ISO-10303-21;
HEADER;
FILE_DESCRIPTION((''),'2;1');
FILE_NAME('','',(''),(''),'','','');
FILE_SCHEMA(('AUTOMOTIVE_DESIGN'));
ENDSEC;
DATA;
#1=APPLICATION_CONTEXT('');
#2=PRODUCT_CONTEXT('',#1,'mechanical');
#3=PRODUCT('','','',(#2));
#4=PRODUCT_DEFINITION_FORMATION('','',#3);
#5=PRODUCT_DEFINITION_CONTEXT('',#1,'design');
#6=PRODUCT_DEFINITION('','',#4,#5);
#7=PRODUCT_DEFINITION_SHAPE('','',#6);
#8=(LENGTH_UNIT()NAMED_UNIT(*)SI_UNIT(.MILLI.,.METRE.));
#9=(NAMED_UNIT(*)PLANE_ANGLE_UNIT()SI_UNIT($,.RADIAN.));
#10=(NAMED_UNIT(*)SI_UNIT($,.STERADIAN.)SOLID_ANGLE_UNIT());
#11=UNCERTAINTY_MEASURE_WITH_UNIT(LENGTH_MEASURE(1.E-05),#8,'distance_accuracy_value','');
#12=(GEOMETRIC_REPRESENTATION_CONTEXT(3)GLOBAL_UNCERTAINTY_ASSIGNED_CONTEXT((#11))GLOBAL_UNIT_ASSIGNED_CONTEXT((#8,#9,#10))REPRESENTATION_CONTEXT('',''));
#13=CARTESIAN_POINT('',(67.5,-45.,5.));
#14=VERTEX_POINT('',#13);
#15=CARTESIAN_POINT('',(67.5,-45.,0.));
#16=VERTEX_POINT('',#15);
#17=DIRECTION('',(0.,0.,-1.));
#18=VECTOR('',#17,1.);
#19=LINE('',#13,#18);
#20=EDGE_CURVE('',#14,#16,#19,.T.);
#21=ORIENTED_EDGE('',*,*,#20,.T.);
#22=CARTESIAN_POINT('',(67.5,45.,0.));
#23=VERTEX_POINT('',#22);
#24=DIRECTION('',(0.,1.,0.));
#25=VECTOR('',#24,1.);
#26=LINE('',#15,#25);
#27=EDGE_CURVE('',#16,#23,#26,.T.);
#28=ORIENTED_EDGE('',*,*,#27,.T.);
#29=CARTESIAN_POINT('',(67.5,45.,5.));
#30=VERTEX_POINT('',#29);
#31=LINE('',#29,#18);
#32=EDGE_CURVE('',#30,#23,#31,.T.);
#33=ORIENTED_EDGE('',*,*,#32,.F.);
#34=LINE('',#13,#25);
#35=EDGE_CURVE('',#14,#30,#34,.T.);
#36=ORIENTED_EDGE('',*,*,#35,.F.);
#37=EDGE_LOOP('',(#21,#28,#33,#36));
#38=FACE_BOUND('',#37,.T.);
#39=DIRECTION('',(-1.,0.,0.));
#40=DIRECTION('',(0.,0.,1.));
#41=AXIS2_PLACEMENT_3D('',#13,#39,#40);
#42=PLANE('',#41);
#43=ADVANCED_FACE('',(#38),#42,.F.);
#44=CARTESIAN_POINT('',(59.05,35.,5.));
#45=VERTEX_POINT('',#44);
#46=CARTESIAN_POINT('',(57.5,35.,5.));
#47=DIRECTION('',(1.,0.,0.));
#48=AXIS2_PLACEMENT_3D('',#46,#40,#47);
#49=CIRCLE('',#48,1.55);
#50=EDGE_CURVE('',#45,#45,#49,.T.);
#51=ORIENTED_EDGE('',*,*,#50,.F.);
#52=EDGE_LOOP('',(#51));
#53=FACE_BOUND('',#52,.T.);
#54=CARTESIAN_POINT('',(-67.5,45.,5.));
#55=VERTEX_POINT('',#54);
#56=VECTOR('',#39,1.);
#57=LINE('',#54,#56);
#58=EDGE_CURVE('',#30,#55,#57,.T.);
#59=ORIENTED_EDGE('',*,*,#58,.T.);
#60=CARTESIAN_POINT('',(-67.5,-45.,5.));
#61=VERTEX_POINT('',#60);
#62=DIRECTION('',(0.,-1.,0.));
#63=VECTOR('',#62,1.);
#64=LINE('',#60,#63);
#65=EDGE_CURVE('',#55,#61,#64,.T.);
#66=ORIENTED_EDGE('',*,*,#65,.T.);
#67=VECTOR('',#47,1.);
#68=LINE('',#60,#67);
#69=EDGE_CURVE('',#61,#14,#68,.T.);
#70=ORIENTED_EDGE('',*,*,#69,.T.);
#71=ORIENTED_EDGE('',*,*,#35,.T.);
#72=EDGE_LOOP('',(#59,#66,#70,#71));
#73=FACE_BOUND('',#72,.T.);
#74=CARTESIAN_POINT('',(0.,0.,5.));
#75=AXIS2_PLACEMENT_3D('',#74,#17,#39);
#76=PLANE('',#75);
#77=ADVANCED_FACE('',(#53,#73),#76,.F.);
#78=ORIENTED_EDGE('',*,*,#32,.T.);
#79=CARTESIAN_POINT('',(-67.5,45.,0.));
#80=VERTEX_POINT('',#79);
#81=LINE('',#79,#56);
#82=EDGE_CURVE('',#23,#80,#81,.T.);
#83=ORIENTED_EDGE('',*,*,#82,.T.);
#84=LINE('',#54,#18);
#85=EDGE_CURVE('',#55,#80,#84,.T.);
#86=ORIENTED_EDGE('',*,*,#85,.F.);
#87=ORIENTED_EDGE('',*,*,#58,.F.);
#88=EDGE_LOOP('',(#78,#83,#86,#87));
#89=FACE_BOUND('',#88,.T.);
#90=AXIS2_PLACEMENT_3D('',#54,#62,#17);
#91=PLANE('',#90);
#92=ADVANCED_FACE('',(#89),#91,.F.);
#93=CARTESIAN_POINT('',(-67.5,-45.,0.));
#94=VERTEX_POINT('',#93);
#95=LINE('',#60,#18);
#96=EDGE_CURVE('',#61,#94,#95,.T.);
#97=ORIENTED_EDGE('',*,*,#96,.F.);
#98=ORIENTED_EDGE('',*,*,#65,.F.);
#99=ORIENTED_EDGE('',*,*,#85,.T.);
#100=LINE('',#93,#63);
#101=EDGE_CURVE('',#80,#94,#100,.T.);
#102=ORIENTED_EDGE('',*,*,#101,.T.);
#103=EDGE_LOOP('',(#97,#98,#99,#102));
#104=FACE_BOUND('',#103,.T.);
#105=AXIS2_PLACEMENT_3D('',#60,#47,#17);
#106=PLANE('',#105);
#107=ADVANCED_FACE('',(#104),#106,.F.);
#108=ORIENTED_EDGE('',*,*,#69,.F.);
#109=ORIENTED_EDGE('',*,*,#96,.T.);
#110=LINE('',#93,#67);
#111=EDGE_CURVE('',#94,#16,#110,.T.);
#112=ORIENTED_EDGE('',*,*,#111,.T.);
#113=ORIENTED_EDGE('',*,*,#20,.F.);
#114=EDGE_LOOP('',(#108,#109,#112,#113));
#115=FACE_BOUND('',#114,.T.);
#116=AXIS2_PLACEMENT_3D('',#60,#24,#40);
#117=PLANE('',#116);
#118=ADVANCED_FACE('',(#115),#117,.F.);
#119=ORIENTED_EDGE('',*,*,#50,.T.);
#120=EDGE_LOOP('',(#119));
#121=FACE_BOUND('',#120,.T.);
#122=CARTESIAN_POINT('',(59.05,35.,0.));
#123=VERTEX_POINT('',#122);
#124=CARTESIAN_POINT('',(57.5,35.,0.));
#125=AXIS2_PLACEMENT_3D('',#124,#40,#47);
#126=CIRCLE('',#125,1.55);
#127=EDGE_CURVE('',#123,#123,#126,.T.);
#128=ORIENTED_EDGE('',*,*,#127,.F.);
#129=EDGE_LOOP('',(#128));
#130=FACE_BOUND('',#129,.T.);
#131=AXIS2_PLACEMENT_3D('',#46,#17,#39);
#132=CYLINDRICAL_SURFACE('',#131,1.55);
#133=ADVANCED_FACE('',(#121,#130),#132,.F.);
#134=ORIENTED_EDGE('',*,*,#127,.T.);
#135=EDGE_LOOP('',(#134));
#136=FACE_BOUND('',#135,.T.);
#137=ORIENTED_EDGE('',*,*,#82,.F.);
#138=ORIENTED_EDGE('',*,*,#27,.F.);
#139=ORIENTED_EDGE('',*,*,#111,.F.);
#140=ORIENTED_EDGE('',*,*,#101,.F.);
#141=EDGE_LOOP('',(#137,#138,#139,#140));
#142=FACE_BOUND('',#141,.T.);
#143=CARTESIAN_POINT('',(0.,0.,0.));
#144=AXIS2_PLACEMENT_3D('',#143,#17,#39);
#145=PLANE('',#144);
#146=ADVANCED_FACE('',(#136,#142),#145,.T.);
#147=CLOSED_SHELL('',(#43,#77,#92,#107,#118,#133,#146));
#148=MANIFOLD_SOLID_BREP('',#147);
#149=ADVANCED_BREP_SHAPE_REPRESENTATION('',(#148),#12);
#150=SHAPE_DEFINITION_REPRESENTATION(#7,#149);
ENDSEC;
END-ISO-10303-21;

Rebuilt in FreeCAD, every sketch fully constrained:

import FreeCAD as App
import Part
import Sketcher
from FreeCAD import Vector
Q = App.Units.Quantity


def add_polygon(sketch, points):
    """Adds a closed chain of lines whose ends are joined by coincident constraints."""
    first, n = sketch.GeometryCount, len(points)
    for a, b in zip(points, points[1:] + points[:1]):
        sketch.addGeometry(Part.LineSegment(App.Vector(*a, 0), App.Vector(*b, 0)), False)
    for i in range(n):
        sketch.addConstraint(Sketcher.Constraint("Coincident", first + i, 2, first + (i + 1) % n, 1))

doc = App.newDocument("Part")
params = doc.addObject("Spreadsheet::Sheet", "Params")
for row, (alias, value) in enumerate([
    ("sketch1_diameter", "3.1 mm"),
    ("sketch1_width", "135 mm"),
    ("sketch1_height", "90 mm"),
    ("pad1_length", "5 mm"),
], start=1):
    params.set(f"A{row}", alias)
    params.set(f"B{row}", "=" + value)
    params.setAlias(f"B{row}", alias)

body = doc.addObject("PartDesign::Body", "Body")

# Sketch on XY plane
sketch1 = body.newObject("Sketcher::SketchObject", "Sketch")
sketch1.AttachmentSupport = (doc.getObject("XY_Plane"), [""])
sketch1.MapMode = "FlatFace"
add_polygon(sketch1, [(-67.5, 45), (-67.5, -45), (67.5, -45), (67.5, 45)])  # lines 0-3
sketch1.addGeometry(Part.Circle(Vector(57.5, 35, 0), Vector(0, 0, 1), 1.6), False)  # 4
sketch1.addConstraint([
    Sketcher.Constraint("Vertical", 0),
    Sketcher.Constraint("Horizontal", 1),
    Sketcher.Constraint("Vertical", 2),
    Sketcher.Constraint("Horizontal", 3),
    Sketcher.Constraint("Symmetric", 0, 2, 2, 2, -1, 1),
    Sketcher.Constraint("Diameter", 4, Q("3.1 mm")),
    Sketcher.Constraint("DistanceX", 1, 1, 1, 2, Q("135 mm")),
    Sketcher.Constraint("DistanceY", 0, 2, 0, 1, Q("90 mm")),
    Sketcher.Constraint("DistanceY", -1, 1, 4, 3, Q("35 mm")),
    Sketcher.Constraint("DistanceX", 0, 2, 4, 3, Q("125 mm")),
])
sketch1.setExpression("Constraints[9]", "Params.sketch1_diameter")
sketch1.setExpression("Constraints[10]", "Params.sketch1_width")
sketch1.setExpression("Constraints[11]", "Params.sketch1_height")
pad1 = body.newObject("PartDesign::Pad", "Pad")
pad1.Profile = sketch1
pad1.setExpression("Length", "Params.pad1_length")

doc.recompute()
